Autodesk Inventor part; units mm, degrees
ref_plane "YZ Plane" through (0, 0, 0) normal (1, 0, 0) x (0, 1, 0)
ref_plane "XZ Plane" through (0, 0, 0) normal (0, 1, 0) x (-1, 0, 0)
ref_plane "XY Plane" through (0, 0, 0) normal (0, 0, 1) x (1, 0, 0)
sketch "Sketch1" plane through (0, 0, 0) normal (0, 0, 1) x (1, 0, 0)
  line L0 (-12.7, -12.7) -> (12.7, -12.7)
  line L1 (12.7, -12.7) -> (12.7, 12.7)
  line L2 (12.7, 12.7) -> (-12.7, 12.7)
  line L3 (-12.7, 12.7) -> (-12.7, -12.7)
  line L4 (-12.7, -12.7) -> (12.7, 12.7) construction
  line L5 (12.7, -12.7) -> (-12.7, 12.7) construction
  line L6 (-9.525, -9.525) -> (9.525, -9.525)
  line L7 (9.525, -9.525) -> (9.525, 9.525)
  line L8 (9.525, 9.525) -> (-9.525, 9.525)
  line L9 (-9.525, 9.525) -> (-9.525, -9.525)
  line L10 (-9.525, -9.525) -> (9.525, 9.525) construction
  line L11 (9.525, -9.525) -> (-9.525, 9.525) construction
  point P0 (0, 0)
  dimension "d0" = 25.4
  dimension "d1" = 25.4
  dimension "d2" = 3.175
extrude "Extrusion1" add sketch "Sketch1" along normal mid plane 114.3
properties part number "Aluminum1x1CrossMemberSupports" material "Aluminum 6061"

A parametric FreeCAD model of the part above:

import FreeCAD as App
import Part
import Sketcher
from FreeCAD import Vector
Q = App.Units.Quantity


def add_polygon(sketch, points):
    """Adds a closed chain of lines whose ends are joined by coincident constraints."""
    first, n = sketch.GeometryCount, len(points)
    for a, b in zip(points, points[1:] + points[:1]):
        sketch.addGeometry(Part.LineSegment(App.Vector(*a, 0), App.Vector(*b, 0)), False)
    for i in range(n):
        sketch.addConstraint(Sketcher.Constraint("Coincident", first + i, 2, first + (i + 1) % n, 1))

doc = App.newDocument("Part")
params = doc.addObject("Spreadsheet::Sheet", "Params")
for row, (alias, value) in enumerate([
    ("sketch1_width", "1 in"),
    ("pad1_length", "4.5 in"),
], start=1):
    params.set(f"A{row}", alias)
    params.set(f"B{row}", "=" + value)
    params.setAlias(f"B{row}", alias)

body = doc.addObject("PartDesign::Body", "Body")

# Sketch on XY plane
sketch1 = body.newObject("Sketcher::SketchObject", "Sketch")
sketch1.AttachmentSupport = (doc.getObject("XY_Plane"), [""])
sketch1.MapMode = "FlatFace"
add_polygon(sketch1, [(-13, 13), (-13, -13), (13, -13), (13, 13)])  # lines 0-3
add_polygon(sketch1, [(10, -10), (-10, -10), (-10, 10), (10, 10)])  # lines 4-7
sketch1.addConstraint([
    Sketcher.Constraint("Vertical", 0),
    Sketcher.Constraint("Horizontal", 1),
    Sketcher.Constraint("Vertical", 2),
    Sketcher.Constraint("Horizontal", 3),
    Sketcher.Constraint("Horizontal", 4),
    Sketcher.Constraint("Vertical", 5),
    Sketcher.Constraint("Horizontal", 6),
    Sketcher.Constraint("Vertical", 7),
    Sketcher.Constraint("Symmetric", 0, 2, 2, 2, -1, 1),
    Sketcher.Constraint("Symmetric", 4, 2, 6, 2, -1, 1),
    Sketcher.Constraint("Equal", 3, 0),
    Sketcher.Constraint("Equal", 6, 5),
    Sketcher.Constraint("DistanceX", 1, 1, 1, 2, Q("1 in")),
    Sketcher.Constraint("DistanceX", 0, 2, 4, 2, Q("0.125 in")),
])
sketch1.setExpression("Constraints[20]", "Params.sketch1_width")
pad1 = body.newObject("PartDesign::Pad", "Pad")
pad1.Profile = sketch1
pad1.setExpression("Length", "Params.pad1_length")
pad1.Midplane = True

doc.recompute()
